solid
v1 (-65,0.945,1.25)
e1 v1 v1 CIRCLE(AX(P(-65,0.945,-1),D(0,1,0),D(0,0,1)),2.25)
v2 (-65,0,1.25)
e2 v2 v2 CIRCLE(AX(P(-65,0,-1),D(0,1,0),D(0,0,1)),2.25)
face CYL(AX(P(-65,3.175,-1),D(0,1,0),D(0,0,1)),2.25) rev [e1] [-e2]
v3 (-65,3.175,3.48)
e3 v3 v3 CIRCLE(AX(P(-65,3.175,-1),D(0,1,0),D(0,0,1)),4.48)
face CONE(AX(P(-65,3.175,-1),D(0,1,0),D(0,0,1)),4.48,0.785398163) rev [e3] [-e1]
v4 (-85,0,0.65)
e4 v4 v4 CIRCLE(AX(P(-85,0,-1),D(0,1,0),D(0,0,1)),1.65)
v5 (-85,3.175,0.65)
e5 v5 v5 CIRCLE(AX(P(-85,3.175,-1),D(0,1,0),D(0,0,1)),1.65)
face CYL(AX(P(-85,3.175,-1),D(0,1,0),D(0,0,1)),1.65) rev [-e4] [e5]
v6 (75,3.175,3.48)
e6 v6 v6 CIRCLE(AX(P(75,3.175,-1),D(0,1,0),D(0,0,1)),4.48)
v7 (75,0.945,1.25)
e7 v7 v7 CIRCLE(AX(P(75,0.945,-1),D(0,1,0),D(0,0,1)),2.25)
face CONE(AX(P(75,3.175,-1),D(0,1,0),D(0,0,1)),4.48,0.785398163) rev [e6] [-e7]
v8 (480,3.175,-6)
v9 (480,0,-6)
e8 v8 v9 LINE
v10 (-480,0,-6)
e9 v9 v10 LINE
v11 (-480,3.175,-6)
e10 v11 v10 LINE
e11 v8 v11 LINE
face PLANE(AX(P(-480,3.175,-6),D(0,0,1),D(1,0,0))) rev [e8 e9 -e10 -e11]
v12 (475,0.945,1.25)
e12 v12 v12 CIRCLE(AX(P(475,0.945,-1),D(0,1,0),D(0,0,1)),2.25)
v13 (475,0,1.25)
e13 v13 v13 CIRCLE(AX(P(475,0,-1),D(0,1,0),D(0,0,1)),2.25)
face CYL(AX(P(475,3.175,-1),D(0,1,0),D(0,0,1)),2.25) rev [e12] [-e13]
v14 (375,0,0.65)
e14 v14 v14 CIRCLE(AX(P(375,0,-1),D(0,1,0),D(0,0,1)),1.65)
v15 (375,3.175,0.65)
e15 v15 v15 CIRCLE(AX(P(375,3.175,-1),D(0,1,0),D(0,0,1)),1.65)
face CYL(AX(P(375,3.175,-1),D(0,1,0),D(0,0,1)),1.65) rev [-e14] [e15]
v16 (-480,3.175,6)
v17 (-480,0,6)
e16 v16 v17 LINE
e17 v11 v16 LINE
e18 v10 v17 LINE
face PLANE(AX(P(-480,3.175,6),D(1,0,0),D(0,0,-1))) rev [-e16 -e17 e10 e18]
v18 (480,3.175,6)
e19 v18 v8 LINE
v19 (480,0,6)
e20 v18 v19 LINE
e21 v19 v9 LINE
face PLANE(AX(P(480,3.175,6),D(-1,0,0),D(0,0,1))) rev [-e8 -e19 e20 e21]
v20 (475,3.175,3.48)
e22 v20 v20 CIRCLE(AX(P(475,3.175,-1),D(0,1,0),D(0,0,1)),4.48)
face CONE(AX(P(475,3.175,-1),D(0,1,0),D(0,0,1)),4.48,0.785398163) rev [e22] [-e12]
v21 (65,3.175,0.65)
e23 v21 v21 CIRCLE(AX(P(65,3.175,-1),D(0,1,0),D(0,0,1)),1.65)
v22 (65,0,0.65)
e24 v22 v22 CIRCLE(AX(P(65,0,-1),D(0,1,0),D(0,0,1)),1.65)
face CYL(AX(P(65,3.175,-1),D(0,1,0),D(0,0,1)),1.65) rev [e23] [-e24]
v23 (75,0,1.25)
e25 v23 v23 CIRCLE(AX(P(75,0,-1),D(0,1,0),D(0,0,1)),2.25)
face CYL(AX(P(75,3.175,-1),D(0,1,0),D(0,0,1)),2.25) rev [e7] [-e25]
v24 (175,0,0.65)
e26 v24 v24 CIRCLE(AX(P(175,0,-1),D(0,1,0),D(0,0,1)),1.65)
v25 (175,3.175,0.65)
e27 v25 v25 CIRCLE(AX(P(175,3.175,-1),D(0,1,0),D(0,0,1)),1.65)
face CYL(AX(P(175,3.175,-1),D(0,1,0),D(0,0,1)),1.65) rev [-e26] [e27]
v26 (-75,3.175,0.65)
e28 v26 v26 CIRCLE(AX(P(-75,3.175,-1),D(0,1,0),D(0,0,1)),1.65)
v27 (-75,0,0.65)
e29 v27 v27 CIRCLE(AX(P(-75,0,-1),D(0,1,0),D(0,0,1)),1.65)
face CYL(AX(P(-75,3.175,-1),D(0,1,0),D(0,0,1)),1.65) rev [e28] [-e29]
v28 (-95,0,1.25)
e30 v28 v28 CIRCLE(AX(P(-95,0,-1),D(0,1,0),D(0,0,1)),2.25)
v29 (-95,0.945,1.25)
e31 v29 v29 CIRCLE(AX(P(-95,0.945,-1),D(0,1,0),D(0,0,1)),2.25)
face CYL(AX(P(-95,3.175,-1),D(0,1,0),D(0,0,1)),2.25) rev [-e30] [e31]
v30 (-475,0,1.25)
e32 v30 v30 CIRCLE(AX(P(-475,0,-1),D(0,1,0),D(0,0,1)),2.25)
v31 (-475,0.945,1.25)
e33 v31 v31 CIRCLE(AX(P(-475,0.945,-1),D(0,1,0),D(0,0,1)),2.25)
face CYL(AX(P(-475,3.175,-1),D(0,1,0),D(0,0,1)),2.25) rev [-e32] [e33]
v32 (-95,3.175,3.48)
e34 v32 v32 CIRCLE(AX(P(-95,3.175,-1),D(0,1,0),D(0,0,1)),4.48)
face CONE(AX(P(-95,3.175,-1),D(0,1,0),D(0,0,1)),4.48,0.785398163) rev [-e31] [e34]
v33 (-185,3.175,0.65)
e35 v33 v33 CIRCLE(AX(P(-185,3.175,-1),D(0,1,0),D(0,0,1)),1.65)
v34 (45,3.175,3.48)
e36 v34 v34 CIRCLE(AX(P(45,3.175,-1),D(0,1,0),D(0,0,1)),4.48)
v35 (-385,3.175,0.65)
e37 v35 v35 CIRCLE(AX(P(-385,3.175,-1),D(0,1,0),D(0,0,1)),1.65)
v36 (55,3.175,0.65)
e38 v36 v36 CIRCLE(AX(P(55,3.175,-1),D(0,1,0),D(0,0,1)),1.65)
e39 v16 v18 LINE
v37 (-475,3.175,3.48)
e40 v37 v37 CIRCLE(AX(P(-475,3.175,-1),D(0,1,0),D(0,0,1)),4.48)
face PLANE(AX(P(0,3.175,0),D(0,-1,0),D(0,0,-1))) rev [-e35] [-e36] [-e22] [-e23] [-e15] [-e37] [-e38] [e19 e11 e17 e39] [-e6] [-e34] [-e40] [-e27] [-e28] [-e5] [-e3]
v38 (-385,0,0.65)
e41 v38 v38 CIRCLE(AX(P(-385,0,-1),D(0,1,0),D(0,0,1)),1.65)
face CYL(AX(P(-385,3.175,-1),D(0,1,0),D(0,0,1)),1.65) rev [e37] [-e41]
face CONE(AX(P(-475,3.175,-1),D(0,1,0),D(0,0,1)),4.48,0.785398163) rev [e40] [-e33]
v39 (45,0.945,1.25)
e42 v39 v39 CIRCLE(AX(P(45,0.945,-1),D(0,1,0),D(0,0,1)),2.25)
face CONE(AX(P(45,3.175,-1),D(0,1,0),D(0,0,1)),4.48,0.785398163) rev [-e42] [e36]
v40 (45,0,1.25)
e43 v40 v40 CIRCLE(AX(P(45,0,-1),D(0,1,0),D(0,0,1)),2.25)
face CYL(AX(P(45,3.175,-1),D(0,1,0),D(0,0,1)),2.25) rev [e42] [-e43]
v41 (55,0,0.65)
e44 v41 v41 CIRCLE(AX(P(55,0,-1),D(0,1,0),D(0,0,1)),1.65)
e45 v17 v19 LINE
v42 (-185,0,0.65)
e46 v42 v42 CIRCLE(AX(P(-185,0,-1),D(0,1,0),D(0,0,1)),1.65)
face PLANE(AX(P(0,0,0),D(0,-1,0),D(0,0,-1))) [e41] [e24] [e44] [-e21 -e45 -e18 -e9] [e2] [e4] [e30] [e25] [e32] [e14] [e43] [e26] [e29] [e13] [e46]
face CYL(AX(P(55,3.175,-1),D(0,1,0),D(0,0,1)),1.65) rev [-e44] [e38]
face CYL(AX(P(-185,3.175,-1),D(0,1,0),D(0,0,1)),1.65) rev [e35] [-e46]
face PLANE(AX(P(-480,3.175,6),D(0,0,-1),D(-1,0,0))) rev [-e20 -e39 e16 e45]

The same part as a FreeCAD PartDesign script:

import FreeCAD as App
import Part
import Sketcher

V = App.Vector
Q = App.Units.Quantity

doc = App.newDocument("Part")
body = doc.addObject("PartDesign::Body", "Body")

# Sketch on XZ plane
sketch1 = body.newObject("Sketcher::SketchObject", "Sketch")
sketch1.AttachmentSupport = (doc.getObject("XZ_Plane"), [""])
sketch1.MapMode = "FlatFace"
sketch1.addGeometry([
    Part.LineSegment(V(-480, -6, 0), V(-480, 6, 0)),
    Part.LineSegment(V(-480, 6, 0), V(480, 6, 0)),
    Part.LineSegment(V(480, 6, 0), V(480, -6, 0)),
    Part.LineSegment(V(480, -6, 0), V(-480, -6, 0)),
], False)
sketch1.addConstraint([
    Sketcher.Constraint("Coincident", 0, 2, 1, 1),
    Sketcher.Constraint("Coincident", 1, 2, 2, 1),
    Sketcher.Constraint("Coincident", 2, 2, 3, 1),
    Sketcher.Constraint("Coincident", 3, 2, 0, 1),
    Sketcher.Constraint("Vertical", 0),
    Sketcher.Constraint("Horizontal", 1),
    Sketcher.Constraint("Vertical", 2),
    Sketcher.Constraint("Horizontal", 3),
    Sketcher.Constraint("Symmetric", 0, 2, 2, 2, -1, 1),
    Sketcher.Constraint("DistanceX", 1, 1, 1, 2, 960.0),
    Sketcher.Constraint("DistanceY", 0, 1, 0, 2, 12.0),
])
pad1 = body.newObject("PartDesign::Pad", "Pad")
pad1.Profile = sketch1
pad1.Length = 3.175
pad1.Reversed = True

# Sketch on YZ plane
sketch2 = body.newObject("Sketcher::SketchObject", "Sketch001")
sketch2.AttachmentSupport = (doc.getObject("YZ_Plane"), [""])
sketch2.MapMode = "FlatFace"
sketch2.AttachmentOffset = App.Placement(V(0, 0, 475), App.Rotation())
sketch2.addGeometry([
    Part.LineSegment(V(0, -1, 0), V(3.2, -1, 0)),  # 0
    Part.LineSegment(V(3.2, -1, 0), V(3.2, 3.5, 0)),  # 1
    Part.LineSegment(V(3.2, 3.5, 0), V(0.9, 1.2, 0)),  # 2
    Part.LineSegment(V(0.9, 1.2, 0), V(0, 1.2, 0)),  # 3
    Part.LineSegment(V(0, 1.2, 0), V(0, -1, 0)),  # 4
], False)
sketch2.addGeometry(Part.LineSegment(V(3.2, -1, 0), V(0, -1, 0)), True)  # axis
sketch2.addConstraint([
    Sketcher.Constraint("Coincident", 0, 2, 1, 1),
    Sketcher.Constraint("Coincident", 1, 2, 2, 1),
    Sketcher.Constraint("Coincident", 2, 2, 3, 1),
    Sketcher.Constraint("Coincident", 3, 2, 4, 1),
    Sketcher.Constraint("Coincident", 4, 2, 0, 1),
    Sketcher.Constraint("Horizontal", 0),
    Sketcher.Constraint("Vertical", 1),
    Sketcher.Constraint("Horizontal", 3),
    Sketcher.Constraint("Vertical", 4),
    Sketcher.Constraint("Horizontal", 5),
    Sketcher.Constraint("Coincident", 5, 1, 0, 2),
    Sketcher.Constraint("PointOnObject", 3, 2, -2),
    Sketcher.Constraint("PointOnObject", 5, 2, -2),
    Sketcher.Constraint("Angle", 2, Q("-135 deg")),
    Sketcher.Constraint("DistanceY", 0, 2, -1, 1, 1.0),
    Sketcher.Constraint("DistanceY", 1, 1, 1, 2, 4.48),
    Sketcher.Constraint("DistanceY", 4, 2, 4, 1, 2.25),
    Sketcher.Constraint("DistanceX", 0, 1, 0, 2, 3.175),
])
groove = body.newObject("PartDesign::Groove", "Groove")
groove.Profile = sketch2
groove.ReferenceAxis = (sketch2, ["Axis0"])
groove.Angle = 360
doc.recompute()

linearpattern = body.newObject("PartDesign::LinearPattern", "LinearPattern")
linearpattern.Originals = [groove]
linearpattern.Direction = (doc.getObject("X_Axis"), [""])
linearpattern.Mode = "offset"
linearpattern.Offset = 570
linearpattern.Occurrences = 2
linearpattern.Reversed = True
body.Tip = linearpattern
doc.recompute()

linearpattern2 = body.newObject("PartDesign::LinearPattern", "LinearPattern001")
linearpattern2.Originals = [groove]
linearpattern2.Direction = (doc.getObject("X_Axis"), [""])
linearpattern2.Mode = "offset"
linearpattern2.Offset = 540
linearpattern2.Occurrences = 2
linearpattern2.Reversed = True
body.Tip = linearpattern2
doc.recompute()

linearpattern3 = body.newObject("PartDesign::LinearPattern", "LinearPattern002")
linearpattern3.Originals = [groove]
linearpattern3.Direction = (doc.getObject("X_Axis"), [""])
linearpattern3.Mode = "offset"
linearpattern3.Offset = 430
linearpattern3.Occurrences = 2
linearpattern3.Reversed = True
body.Tip = linearpattern3
doc.recompute()

linearpattern4 = body.newObject("PartDesign::LinearPattern", "LinearPattern003")
linearpattern4.Originals = [groove]
linearpattern4.Direction = (doc.getObject("X_Axis"), [""])
linearpattern4.Mode = "offset"
linearpattern4.Offset = 400
linearpattern4.Occurrences = 2
linearpattern4.Reversed = True
body.Tip = linearpattern4
doc.recompute()

linearpattern5 = body.newObject("PartDesign::LinearPattern", "LinearPattern004")
linearpattern5.Originals = [groove]
linearpattern5.Direction = (doc.getObject("X_Axis"), [""])
linearpattern5.Mode = "offset"
linearpattern5.Offset = 950
linearpattern5.Occurrences = 2
linearpattern5.Reversed = True
body.Tip = linearpattern5

# Sketch on XZ plane
sketch3 = body.newObject("Sketcher::SketchObject", "Sketch002")
sketch3.AttachmentSupport = (doc.getObject("XZ_Plane"), [""])
sketch3.MapMode = "FlatFace"
sketch3.AttachmentOffset = App.Placement(V(0, 0, -3.175), App.Rotation())
sketch3.addGeometry([
    Part.Circle(V(-85, -1, 0), V(0, 0, 1), 1.6),  # 0
    Part.Circle(V(-75, -1, 0), V(0, 0, 1), 1.6),  # 1
    Part.Circle(V(55, -1, 0), V(0, 0, 1), 1.6),  # 2
    Part.Circle(V(65, -1, 0), V(0, 0, 1), 1.6),  # 3
    Part.Circle(V(175, -1, 0), V(0, 0, 1), 1.6),  # 4
    Part.Circle(V(375, -1, 0), V(0, 0, 1), 1.6),  # 5
    Part.Circle(V(-385, -1, 0), V(0, 0, 1), 1.6),  # 6
    Part.Circle(V(-185, -1, 0), V(0, 0, 1), 1.6),  # 7
], False)
sketch3.addConstraint([
    Sketcher.Constraint("Equal", 0, 1),
    Sketcher.Constraint("Equal", 1, 2),
    Sketcher.Constraint("Equal", 2, 3),
    Sketcher.Constraint("Equal", 3, 4),
    Sketcher.Constraint("Equal", 4, 5),
    Sketcher.Constraint("Equal", 5, 6),
    Sketcher.Constraint("Equal", 6, 7),
    Sketcher.Constraint("Horizontal", 0, 3, 1, 3),
    Sketcher.Constraint("Horizontal", 1, 3, 2, 3),
    Sketcher.Constraint("Horizontal", 2, 3, 3, 3),
    Sketcher.Constraint("Horizontal", 3, 3, 4, 3),
    Sketcher.Constraint("Horizontal", 4, 3, 5, 3),
    Sketcher.Constraint("Horizontal", 5, 3, 6, 3),
    Sketcher.Constraint("Horizontal", 6, 3, 7, 3),
    Sketcher.Constraint("Diameter", 0, 3.3),
    Sketcher.Constraint("DistanceX", 0, 3, -1, 1, 85.0),
    Sketcher.Constraint("DistanceY", 0, 3, -1, 1, 1.0),
    Sketcher.Constraint("DistanceX", 1, 3, -1, 1, 75.0),
    Sketcher.Constraint("DistanceX", -1, 1, 2, 3, 55.0),
    Sketcher.Constraint("DistanceX", -1, 1, 3, 3, 65.0),
    Sketcher.Constraint("DistanceX", -1, 1, 4, 3, 175.0),
    Sketcher.Constraint("DistanceX", -1, 1, 5, 3, 375.0),
    Sketcher.Constraint("DistanceX", 6, 3, -1, 1, 385.0),
    Sketcher.Constraint("DistanceX", 7, 3, -1, 1, 185.0),
])
doc.recompute()
hole = body.newObject("PartDesign::Hole", "Hole")
hole.Profile = sketch3
hole.ThreadType = "None"
hole.Diameter = 3.3
hole.DepthType = "ThroughAll"
hole.Reversed = True

doc.recompute()
